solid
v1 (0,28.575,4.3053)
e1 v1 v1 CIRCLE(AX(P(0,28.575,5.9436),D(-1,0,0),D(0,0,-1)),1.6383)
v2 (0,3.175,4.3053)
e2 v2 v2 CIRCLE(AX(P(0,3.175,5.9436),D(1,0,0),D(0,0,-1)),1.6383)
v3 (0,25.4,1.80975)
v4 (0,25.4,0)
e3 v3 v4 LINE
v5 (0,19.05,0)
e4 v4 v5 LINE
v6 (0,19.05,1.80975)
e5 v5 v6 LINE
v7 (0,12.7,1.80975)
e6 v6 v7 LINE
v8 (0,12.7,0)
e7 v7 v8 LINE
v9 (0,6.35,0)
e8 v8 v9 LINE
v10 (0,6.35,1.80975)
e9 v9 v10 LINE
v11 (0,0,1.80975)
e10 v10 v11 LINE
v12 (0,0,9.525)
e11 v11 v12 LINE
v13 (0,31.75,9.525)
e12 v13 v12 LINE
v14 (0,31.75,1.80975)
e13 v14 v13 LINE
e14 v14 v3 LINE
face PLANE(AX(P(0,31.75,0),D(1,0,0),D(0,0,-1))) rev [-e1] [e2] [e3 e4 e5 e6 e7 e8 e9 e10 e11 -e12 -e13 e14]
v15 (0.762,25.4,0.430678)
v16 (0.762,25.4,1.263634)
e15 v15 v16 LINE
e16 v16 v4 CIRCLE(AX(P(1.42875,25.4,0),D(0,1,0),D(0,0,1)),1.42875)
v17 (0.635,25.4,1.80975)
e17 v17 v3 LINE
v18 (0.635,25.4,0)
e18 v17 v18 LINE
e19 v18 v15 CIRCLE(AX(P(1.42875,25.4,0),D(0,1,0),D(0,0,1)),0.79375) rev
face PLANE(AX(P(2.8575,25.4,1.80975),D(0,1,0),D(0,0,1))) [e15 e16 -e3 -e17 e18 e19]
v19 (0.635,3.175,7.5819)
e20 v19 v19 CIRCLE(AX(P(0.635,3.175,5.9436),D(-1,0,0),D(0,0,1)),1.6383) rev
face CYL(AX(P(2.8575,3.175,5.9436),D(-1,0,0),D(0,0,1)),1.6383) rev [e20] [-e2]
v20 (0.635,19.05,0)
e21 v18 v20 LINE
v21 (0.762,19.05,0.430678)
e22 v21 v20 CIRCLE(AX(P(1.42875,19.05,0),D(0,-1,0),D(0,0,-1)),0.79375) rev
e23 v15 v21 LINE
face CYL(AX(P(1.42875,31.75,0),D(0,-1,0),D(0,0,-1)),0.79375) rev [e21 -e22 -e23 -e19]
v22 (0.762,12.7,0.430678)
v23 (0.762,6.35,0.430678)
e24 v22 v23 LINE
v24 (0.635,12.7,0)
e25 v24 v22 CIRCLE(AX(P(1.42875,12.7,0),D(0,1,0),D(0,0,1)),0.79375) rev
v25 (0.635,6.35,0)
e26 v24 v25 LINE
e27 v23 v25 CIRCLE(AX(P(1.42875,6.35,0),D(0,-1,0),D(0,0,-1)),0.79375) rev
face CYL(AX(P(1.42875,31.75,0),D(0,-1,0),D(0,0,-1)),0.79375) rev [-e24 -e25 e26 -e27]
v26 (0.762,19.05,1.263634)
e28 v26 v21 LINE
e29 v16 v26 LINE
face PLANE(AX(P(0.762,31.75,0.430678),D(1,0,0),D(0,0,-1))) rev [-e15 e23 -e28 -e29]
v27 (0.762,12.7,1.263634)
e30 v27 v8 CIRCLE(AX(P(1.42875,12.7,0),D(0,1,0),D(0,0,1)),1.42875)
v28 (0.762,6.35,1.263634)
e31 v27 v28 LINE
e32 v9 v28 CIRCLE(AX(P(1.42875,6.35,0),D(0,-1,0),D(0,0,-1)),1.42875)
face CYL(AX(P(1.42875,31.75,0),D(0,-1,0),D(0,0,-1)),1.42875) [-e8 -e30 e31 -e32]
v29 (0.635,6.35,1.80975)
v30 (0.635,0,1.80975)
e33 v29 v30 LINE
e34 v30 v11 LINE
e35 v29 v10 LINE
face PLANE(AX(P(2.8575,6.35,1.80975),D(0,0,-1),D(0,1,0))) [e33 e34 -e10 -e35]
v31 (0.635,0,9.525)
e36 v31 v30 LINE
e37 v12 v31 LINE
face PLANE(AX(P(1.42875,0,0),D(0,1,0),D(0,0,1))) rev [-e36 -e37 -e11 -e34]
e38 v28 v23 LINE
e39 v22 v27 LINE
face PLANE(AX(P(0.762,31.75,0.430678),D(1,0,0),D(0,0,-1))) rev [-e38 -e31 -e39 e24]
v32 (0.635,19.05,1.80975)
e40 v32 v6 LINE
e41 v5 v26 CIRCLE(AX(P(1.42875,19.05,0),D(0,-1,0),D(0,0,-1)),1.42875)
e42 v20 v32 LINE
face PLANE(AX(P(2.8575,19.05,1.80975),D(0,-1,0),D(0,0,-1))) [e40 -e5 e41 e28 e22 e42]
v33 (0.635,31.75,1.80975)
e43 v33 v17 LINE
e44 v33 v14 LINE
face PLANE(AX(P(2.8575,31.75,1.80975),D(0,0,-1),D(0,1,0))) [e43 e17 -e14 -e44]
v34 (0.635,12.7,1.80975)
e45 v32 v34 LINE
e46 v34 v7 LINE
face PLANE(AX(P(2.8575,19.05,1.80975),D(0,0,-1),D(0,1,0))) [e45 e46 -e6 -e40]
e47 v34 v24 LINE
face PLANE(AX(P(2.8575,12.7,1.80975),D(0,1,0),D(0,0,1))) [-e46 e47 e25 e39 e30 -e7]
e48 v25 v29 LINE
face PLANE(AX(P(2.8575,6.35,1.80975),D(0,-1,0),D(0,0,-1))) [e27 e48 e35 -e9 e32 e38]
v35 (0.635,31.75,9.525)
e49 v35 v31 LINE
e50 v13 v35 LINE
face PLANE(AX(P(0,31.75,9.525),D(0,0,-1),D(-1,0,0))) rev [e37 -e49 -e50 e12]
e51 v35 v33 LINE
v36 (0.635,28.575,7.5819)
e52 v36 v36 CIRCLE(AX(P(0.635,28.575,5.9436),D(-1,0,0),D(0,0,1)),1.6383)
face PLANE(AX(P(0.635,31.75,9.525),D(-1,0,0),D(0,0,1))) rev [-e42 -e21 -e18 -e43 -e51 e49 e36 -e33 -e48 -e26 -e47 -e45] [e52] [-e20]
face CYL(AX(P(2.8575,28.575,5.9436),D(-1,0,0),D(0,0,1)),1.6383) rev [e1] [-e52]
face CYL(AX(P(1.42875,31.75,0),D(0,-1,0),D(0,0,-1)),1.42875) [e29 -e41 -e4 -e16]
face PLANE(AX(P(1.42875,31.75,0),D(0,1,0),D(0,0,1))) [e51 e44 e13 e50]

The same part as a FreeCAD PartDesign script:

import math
import FreeCAD as App
import Part
import Sketcher

V = App.Vector
Q = App.Units.Quantity


def add_polygon(sketch, points):
    """Adds a closed chain of lines whose ends are joined by coincident constraints."""
    first, n = sketch.GeometryCount, len(points)
    for a, b in zip(points, points[1:] + points[:1]):
        sketch.addGeometry(Part.LineSegment(App.Vector(*a, 0), App.Vector(*b, 0)), False)
    for i in range(n):
        sketch.addConstraint(Sketcher.Constraint("Coincident", first + i, 2, first + (i + 1) % n, 1))

doc = App.newDocument("Part")
body = doc.addObject("PartDesign::Body", "Body")

# Sketch on XZ plane
sketch1 = body.newObject("Sketcher::SketchObject", "Sketch")
sketch1.AttachmentSupport = (doc.getObject("XZ_Plane"), [""])
sketch1.MapMode = "FlatFace"
sketch1.addGeometry(Part.LineSegment(V(0, 0, 0), V(0, 9.525, 0)), False)
sketch1.addGeometry(Part.LineSegment(V(0, 9.525, 0), V(0.635, 9.525, 0)), False)
sketch1.addGeometry(Part.LineSegment(V(0.635, 9.525, 0), V(0.635, 0, 0)), False)
sketch1.addGeometry(Part.ArcOfCircle(Part.Circle(V(1.42875, 0, 0), V(0, 0, 1), 0.79375), math.radians(180), math.radians(507.14012)), False)
sketch1.addGeometry(Part.LineSegment(V(0.762, 0.430678, 0), V(0.762, 1.263634, 0)), False)
sketch1.addGeometry(Part.ArcOfCircle(Part.Circle(V(1.42875, 0, 0), V(0, 0, 1), 1.42875), math.radians(180), math.radians(477.818139)), False)
sketch1.addConstraint(Sketcher.Constraint("Coincident", 0, 2, 1, 1))
sketch1.addConstraint(Sketcher.Constraint("Coincident", 1, 2, 2, 1))
sketch1.addConstraint(Sketcher.Constraint("Tangent", 2, 2, 3, 1))
sketch1.addConstraint(Sketcher.Constraint("Coincident", 3, 2, 4, 1))
sketch1.addConstraint(Sketcher.Constraint("Coincident", 4, 2, 5, 2))
sketch1.addConstraint(Sketcher.Constraint("Tangent", 5, 1, 0, 1))
sketch1.addConstraint(Sketcher.Constraint("Vertical", 0))
sketch1.addConstraint(Sketcher.Constraint("Horizontal", 1))
sketch1.addConstraint(Sketcher.Constraint("Vertical", 2))
sketch1.addConstraint(Sketcher.Constraint("Vertical", 4))
sketch1.addConstraint(Sketcher.Constraint("Coincident", 5, 1, -1, 1))
sketch1.addConstraint(Sketcher.Constraint("Coincident", 5, 3, 3, 3))
sketch1.addConstraint(Sketcher.Constraint("Radius", 3, Q("0.03125 in")))
sketch1.addConstraint(Sketcher.Constraint("DistanceX", 1, 1, 1, 2, Q("0.025 in")))
sketch1.addConstraint(Sketcher.Constraint("DistanceY", 0, 1, 0, 2, Q("0.375 in")))
sketch1.addConstraint(Sketcher.Constraint("DistanceX", -1, 1, 3, 2, Q("0.03 in")))
pad1 = body.newObject("PartDesign::Pad", "Pad")
pad1.Profile = sketch1
pad1.Length = Q("1.25 in")
pad1.Reversed = True

# Sketch on YZ plane
sketch2 = body.newObject("Sketcher::SketchObject", "Sketch001")
sketch2.AttachmentSupport = (doc.getObject("YZ_Plane"), [""])
sketch2.MapMode = "FlatFace"
add_polygon(sketch2, [(6.35, 1.80975), (0, 1.80975), (0, -1.80975), (6.35, -1.80975)])  # lines 0-3
add_polygon(sketch2, [(19.05, 1.80975), (12.7, 1.80975), (12.7, -1.80975), (19.05, -1.80975)])  # lines 4-7
add_polygon(sketch2, [(31.75, 1.80975), (25.4, 1.80975), (25.4, -1.80975), (31.75, -1.80975)])  # lines 8-11
sketch2.addConstraint(Sketcher.Constraint("Horizontal", 0))
sketch2.addConstraint(Sketcher.Constraint("Vertical", 1))
sketch2.addConstraint(Sketcher.Constraint("Horizontal", 2))
sketch2.addConstraint(Sketcher.Constraint("Vertical", 3))
sketch2.addConstraint(Sketcher.Constraint("Horizontal", 4))
sketch2.addConstraint(Sketcher.Constraint("Vertical", 5))
sketch2.addConstraint(Sketcher.Constraint("Horizontal", 6))
sketch2.addConstraint(Sketcher.Constraint("Vertical", 7))
sketch2.addConstraint(Sketcher.Constraint("Horizontal", 8))
sketch2.addConstraint(Sketcher.Constraint("Vertical", 9))
sketch2.addConstraint(Sketcher.Constraint("Horizontal", 10))
sketch2.addConstraint(Sketcher.Constraint("Vertical", 11))
sketch2.addConstraint(Sketcher.Constraint("Symmetric", 0, 2, 1, 2, -1, 1))
sketch2.addConstraint(Sketcher.Constraint("Horizontal", 3, 2, 4, 2))
sketch2.addConstraint(Sketcher.Constraint("Horizontal", 2, 2, 5, 2))
sketch2.addConstraint(Sketcher.Constraint("Horizontal", 7, 2, 8, 2))
sketch2.addConstraint(Sketcher.Constraint("Horizontal", 6, 2, 9, 2))
sketch2.addConstraint(Sketcher.Constraint("Equal", 2, 4))
sketch2.addConstraint(Sketcher.Constraint("Equal", 6, 8))
sketch2.addConstraint(Sketcher.Constraint("DistanceX", -1, 1, 8, 2, Q("1 in")))
sketch2.addConstraint(Sketcher.Constraint("DistanceX", 0, 2, 0, 1, Q("0.25 in")))
sketch2.addConstraint(Sketcher.Constraint("DistanceX", -1, 1, 4, 2, Q("0.5 in")))
sketch2.addConstraint(Sketcher.Constraint("DistanceY", 1, 2, 1, 1, Q("0.1425 in")))
pocket1 = body.newObject("PartDesign::Pocket", "Pocket")
pocket1.Profile = sketch2
pocket1.Type = "ThroughAll"
pocket1.Reversed = True

# Sketch on YZ plane
sketch3 = body.newObject("Sketcher::SketchObject", "Sketch002")
sketch3.AttachmentSupport = (doc.getObject("YZ_Plane"), [""])
sketch3.MapMode = "FlatFace"
sketch3.addGeometry(Part.Circle(V(3.175, 5.9436, 0), V(0, 0, 1), 1.6383), False)
sketch3.addConstraint(Sketcher.Constraint("Diameter", 0, Q("0.129 in")))
sketch3.addConstraint(Sketcher.Constraint("DistanceX", -1, 1, 0, 3, Q("0.125 in")))
sketch3.addConstraint(Sketcher.Constraint("DistanceY", -1, 1, 0, 3, Q("0.234 in")))
pocket2 = body.newObject("PartDesign::Pocket", "Pocket001")
pocket2.Profile = sketch3
pocket2.Type = "ThroughAll"
pocket2.Reversed = True
doc.recompute()

datumplane = body.newObject("PartDesign::Plane", "DatumPlane")
datumplane.AttachmentSupport = (doc.getObject("XZ_Plane"), [""])
datumplane.MapMode = "FlatFace"
datumplane.AttachmentOffset = App.Placement(V(0, 0, -0.625 * 25.4), App.Rotation())
mirrored = body.newObject("PartDesign::Mirrored", "Mirrored")
mirrored.Originals = [pocket2]
mirrored.MirrorPlane = (datumplane, [""])
body.Tip = mirrored

doc.recompute()
